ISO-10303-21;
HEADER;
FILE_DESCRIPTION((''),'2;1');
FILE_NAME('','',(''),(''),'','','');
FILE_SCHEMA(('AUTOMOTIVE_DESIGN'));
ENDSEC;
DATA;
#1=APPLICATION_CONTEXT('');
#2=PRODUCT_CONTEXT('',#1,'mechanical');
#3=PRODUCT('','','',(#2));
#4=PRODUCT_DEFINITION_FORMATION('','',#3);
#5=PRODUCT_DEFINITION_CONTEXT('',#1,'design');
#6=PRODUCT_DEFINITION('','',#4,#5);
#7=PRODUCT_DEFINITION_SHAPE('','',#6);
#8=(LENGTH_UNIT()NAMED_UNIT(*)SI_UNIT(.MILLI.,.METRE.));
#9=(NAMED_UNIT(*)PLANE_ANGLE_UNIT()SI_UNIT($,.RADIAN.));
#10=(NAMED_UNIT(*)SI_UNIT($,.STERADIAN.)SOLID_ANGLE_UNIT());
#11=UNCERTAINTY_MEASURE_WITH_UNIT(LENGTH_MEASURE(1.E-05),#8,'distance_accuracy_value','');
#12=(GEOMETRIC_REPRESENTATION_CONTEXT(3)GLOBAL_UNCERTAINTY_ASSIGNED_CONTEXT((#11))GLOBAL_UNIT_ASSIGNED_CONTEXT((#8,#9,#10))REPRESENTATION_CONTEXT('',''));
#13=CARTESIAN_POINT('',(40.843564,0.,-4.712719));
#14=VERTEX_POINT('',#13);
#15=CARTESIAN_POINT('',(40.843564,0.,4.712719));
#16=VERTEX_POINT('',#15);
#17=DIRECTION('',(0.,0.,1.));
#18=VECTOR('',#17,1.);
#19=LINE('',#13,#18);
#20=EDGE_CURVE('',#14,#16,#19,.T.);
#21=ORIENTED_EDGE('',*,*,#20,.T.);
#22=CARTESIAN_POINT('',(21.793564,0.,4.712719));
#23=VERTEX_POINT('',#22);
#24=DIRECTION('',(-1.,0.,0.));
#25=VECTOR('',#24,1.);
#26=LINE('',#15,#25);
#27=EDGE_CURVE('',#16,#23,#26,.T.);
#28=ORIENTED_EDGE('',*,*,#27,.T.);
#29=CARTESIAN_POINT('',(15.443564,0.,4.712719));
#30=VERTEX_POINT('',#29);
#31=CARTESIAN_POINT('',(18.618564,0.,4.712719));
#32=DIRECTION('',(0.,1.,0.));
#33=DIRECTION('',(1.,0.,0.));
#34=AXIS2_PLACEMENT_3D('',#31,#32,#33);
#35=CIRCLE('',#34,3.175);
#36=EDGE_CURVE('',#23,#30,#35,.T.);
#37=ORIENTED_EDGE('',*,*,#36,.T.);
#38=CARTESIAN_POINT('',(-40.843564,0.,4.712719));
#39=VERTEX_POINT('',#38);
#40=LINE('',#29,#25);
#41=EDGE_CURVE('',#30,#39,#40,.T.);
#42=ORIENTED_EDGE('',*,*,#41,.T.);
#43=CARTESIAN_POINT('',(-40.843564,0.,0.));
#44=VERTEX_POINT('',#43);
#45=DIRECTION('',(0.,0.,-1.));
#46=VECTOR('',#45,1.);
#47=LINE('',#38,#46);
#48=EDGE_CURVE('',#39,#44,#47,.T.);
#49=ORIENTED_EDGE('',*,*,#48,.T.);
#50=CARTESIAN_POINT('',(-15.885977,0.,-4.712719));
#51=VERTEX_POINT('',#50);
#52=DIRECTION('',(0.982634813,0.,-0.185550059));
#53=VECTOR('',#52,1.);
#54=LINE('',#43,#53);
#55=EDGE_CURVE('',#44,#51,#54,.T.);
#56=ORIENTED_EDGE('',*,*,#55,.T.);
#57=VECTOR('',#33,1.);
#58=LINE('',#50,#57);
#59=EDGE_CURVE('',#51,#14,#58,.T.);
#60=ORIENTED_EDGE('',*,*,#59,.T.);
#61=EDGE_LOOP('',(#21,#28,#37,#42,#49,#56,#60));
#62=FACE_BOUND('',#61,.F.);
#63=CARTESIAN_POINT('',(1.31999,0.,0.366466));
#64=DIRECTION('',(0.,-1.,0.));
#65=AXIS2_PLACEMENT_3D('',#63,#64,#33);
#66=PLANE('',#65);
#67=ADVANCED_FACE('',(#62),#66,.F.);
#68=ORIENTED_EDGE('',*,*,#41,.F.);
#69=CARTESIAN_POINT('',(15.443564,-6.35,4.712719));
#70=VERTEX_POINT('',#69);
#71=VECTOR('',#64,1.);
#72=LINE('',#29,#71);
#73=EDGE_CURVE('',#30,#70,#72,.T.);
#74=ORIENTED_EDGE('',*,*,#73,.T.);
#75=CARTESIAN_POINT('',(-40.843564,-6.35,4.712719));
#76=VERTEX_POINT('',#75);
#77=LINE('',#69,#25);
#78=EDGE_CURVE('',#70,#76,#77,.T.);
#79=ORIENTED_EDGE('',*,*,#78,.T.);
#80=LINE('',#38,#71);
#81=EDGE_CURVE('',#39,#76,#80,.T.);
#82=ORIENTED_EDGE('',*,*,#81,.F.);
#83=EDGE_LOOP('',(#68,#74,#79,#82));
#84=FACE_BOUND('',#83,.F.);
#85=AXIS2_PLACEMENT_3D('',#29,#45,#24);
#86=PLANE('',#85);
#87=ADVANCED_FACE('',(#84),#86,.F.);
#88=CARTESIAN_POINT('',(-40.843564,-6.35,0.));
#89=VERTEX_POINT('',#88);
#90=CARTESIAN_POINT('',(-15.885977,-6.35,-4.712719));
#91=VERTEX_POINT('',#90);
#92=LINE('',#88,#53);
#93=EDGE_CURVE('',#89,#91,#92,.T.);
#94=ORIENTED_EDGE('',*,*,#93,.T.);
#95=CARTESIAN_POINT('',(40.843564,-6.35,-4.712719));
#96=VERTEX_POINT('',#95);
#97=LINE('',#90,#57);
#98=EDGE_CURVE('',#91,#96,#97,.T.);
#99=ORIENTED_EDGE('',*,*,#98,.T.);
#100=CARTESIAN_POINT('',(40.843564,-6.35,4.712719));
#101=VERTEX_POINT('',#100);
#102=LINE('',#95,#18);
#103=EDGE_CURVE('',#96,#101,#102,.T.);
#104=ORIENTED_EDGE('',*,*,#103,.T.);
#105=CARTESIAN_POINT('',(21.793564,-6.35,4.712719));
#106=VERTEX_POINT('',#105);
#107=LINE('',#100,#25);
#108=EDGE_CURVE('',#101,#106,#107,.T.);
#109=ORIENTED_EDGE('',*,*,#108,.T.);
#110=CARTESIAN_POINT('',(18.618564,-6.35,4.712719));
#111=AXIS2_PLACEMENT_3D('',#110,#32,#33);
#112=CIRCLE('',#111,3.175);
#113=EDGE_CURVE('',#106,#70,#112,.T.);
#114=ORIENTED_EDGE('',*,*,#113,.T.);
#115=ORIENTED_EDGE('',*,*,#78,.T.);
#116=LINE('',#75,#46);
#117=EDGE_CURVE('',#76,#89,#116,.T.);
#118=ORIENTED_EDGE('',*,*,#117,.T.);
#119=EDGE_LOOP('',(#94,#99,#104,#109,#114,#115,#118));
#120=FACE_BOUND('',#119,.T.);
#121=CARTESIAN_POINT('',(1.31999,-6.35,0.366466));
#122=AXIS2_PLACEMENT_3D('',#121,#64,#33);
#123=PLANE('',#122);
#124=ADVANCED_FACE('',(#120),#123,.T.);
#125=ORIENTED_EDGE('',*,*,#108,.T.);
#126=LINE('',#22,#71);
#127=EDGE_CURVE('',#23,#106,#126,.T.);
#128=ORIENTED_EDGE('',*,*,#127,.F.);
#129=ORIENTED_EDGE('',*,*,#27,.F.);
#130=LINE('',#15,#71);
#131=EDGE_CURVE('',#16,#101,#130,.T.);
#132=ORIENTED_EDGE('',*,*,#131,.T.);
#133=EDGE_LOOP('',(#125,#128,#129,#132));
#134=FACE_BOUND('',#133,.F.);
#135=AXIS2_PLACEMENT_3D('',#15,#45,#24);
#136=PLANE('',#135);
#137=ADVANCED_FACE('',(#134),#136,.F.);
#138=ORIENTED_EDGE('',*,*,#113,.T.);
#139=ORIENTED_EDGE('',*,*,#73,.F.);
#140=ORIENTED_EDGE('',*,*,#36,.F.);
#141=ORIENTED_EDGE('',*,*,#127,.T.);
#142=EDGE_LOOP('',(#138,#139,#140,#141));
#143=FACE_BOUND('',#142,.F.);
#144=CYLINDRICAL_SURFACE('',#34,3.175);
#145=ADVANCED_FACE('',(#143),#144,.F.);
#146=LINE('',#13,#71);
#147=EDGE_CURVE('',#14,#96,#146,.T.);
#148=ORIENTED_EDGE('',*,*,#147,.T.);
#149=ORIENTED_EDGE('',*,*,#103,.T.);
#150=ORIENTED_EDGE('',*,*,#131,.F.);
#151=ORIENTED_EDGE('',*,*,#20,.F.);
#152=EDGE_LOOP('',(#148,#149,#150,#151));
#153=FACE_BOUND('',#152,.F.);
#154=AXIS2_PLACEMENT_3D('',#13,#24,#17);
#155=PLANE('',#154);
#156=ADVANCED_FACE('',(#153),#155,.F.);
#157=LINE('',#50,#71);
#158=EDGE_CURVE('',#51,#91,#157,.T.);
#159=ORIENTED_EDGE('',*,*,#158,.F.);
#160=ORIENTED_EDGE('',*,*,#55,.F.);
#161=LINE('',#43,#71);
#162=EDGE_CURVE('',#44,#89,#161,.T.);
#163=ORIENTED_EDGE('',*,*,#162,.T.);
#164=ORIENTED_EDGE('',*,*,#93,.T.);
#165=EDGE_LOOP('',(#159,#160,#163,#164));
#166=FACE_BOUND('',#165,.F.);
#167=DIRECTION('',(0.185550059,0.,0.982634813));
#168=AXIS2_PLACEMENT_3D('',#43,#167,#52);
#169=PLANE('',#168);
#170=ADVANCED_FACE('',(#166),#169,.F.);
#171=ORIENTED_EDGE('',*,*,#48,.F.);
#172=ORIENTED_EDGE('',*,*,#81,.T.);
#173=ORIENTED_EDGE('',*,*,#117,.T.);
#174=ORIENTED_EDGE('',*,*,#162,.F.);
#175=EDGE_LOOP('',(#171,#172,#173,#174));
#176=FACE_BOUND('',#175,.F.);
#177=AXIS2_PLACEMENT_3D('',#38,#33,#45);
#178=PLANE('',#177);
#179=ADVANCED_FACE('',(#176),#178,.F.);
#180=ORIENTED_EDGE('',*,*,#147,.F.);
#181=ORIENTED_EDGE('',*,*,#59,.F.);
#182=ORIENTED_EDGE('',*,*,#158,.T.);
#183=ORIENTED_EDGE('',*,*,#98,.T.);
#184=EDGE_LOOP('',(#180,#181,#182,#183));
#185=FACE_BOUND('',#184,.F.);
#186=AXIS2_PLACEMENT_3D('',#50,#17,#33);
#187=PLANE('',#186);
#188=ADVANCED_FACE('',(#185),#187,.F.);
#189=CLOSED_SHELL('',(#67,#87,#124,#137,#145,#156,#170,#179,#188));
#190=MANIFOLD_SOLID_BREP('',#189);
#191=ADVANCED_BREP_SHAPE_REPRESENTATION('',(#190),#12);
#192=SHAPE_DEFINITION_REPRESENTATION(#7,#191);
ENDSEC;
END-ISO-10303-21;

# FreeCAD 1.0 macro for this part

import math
import FreeCAD as App
import Part
import Sketcher

V = App.Vector
Q = App.Units.Quantity

doc = App.newDocument("Part")
body = doc.addObject("PartDesign::Body", "Body")

sketch1 = body.newObject("Sketcher::SketchObject", "Sketch")
sketch1.AttachmentSupport = (doc.getObject("XZ_Plane"), [""])
sketch1.MapMode = "FlatFace"
sketch1.addGeometry([
    Part.LineSegment(V(15.443564, 4.712719, 0), V(-40.843564, 4.712719, 0)),
    Part.LineSegment(V(-40.843564, 4.712719, 0), V(-40.843564, 0, 0)),
    Part.LineSegment(V(-40.843564, 0, 0), V(-15.885977, -4.712719, 0)),
    Part.LineSegment(V(-15.885977, -4.712719, 0), V(40.843564, -4.712719, 0)),
    Part.LineSegment(V(40.843564, -4.712719, 0), V(40.843564, 4.712719, 0)),
    Part.LineSegment(V(40.843564, 4.712719, 0), V(21.793564, 4.712719, 0)),
    Part.ArcOfCircle(Part.Circle(V(18.618564, 4.712719, 0), V(0, 0, 1), 3.175), math.radians(180), math.radians(360)),
], False)
sketch1.addConstraint([
    Sketcher.Constraint("Coincident", 0, 2, 1, 1),
    Sketcher.Constraint("Coincident", 1, 2, 2, 1),
    Sketcher.Constraint("Coincident", 2, 2, 3, 1),
    Sketcher.Constraint("Coincident", 3, 2, 4, 1),
    Sketcher.Constraint("Coincident", 4, 2, 5, 1),
    Sketcher.Constraint("Coincident", 5, 2, 6, 2),
    Sketcher.Constraint("Coincident", 6, 1, 0, 1),
    Sketcher.Constraint("Horizontal", 0),
    Sketcher.Constraint("Vertical", 1),
    Sketcher.Constraint("Horizontal", 3),
    Sketcher.Constraint("Vertical", 4),
    Sketcher.Constraint("Horizontal", 5),
    Sketcher.Constraint("Symmetric", 0, 2, 3, 2, -1, 1),
    Sketcher.Constraint("PointOnObject", 1, 2, -1),
    Sketcher.Constraint("Horizontal", 6, 3, 0, 2),
    Sketcher.Constraint("Horizontal", 0, 2, 4, 2),
    Sketcher.Constraint("Radius", 6, Q("0.125 in")),
    Sketcher.Constraint("DistanceX", 6, 1, 4, 2, Q("1 in")),
    Sketcher.Constraint("DistanceX", 0, 2, 0, 1, Q("56.287128 mm")),
    Sketcher.Constraint("DistanceX", 3, 1, 3, 2, Q("56.729541 mm")),
    Sketcher.Constraint("DistanceY", 1, 2, 1, 1, Q("4.712719 mm")),
])
pad1 = body.newObject("PartDesign::Pad", "Pad")
pad1.Profile = sketch1
pad1.Length = Q("0.25 in")

doc.recompute()
